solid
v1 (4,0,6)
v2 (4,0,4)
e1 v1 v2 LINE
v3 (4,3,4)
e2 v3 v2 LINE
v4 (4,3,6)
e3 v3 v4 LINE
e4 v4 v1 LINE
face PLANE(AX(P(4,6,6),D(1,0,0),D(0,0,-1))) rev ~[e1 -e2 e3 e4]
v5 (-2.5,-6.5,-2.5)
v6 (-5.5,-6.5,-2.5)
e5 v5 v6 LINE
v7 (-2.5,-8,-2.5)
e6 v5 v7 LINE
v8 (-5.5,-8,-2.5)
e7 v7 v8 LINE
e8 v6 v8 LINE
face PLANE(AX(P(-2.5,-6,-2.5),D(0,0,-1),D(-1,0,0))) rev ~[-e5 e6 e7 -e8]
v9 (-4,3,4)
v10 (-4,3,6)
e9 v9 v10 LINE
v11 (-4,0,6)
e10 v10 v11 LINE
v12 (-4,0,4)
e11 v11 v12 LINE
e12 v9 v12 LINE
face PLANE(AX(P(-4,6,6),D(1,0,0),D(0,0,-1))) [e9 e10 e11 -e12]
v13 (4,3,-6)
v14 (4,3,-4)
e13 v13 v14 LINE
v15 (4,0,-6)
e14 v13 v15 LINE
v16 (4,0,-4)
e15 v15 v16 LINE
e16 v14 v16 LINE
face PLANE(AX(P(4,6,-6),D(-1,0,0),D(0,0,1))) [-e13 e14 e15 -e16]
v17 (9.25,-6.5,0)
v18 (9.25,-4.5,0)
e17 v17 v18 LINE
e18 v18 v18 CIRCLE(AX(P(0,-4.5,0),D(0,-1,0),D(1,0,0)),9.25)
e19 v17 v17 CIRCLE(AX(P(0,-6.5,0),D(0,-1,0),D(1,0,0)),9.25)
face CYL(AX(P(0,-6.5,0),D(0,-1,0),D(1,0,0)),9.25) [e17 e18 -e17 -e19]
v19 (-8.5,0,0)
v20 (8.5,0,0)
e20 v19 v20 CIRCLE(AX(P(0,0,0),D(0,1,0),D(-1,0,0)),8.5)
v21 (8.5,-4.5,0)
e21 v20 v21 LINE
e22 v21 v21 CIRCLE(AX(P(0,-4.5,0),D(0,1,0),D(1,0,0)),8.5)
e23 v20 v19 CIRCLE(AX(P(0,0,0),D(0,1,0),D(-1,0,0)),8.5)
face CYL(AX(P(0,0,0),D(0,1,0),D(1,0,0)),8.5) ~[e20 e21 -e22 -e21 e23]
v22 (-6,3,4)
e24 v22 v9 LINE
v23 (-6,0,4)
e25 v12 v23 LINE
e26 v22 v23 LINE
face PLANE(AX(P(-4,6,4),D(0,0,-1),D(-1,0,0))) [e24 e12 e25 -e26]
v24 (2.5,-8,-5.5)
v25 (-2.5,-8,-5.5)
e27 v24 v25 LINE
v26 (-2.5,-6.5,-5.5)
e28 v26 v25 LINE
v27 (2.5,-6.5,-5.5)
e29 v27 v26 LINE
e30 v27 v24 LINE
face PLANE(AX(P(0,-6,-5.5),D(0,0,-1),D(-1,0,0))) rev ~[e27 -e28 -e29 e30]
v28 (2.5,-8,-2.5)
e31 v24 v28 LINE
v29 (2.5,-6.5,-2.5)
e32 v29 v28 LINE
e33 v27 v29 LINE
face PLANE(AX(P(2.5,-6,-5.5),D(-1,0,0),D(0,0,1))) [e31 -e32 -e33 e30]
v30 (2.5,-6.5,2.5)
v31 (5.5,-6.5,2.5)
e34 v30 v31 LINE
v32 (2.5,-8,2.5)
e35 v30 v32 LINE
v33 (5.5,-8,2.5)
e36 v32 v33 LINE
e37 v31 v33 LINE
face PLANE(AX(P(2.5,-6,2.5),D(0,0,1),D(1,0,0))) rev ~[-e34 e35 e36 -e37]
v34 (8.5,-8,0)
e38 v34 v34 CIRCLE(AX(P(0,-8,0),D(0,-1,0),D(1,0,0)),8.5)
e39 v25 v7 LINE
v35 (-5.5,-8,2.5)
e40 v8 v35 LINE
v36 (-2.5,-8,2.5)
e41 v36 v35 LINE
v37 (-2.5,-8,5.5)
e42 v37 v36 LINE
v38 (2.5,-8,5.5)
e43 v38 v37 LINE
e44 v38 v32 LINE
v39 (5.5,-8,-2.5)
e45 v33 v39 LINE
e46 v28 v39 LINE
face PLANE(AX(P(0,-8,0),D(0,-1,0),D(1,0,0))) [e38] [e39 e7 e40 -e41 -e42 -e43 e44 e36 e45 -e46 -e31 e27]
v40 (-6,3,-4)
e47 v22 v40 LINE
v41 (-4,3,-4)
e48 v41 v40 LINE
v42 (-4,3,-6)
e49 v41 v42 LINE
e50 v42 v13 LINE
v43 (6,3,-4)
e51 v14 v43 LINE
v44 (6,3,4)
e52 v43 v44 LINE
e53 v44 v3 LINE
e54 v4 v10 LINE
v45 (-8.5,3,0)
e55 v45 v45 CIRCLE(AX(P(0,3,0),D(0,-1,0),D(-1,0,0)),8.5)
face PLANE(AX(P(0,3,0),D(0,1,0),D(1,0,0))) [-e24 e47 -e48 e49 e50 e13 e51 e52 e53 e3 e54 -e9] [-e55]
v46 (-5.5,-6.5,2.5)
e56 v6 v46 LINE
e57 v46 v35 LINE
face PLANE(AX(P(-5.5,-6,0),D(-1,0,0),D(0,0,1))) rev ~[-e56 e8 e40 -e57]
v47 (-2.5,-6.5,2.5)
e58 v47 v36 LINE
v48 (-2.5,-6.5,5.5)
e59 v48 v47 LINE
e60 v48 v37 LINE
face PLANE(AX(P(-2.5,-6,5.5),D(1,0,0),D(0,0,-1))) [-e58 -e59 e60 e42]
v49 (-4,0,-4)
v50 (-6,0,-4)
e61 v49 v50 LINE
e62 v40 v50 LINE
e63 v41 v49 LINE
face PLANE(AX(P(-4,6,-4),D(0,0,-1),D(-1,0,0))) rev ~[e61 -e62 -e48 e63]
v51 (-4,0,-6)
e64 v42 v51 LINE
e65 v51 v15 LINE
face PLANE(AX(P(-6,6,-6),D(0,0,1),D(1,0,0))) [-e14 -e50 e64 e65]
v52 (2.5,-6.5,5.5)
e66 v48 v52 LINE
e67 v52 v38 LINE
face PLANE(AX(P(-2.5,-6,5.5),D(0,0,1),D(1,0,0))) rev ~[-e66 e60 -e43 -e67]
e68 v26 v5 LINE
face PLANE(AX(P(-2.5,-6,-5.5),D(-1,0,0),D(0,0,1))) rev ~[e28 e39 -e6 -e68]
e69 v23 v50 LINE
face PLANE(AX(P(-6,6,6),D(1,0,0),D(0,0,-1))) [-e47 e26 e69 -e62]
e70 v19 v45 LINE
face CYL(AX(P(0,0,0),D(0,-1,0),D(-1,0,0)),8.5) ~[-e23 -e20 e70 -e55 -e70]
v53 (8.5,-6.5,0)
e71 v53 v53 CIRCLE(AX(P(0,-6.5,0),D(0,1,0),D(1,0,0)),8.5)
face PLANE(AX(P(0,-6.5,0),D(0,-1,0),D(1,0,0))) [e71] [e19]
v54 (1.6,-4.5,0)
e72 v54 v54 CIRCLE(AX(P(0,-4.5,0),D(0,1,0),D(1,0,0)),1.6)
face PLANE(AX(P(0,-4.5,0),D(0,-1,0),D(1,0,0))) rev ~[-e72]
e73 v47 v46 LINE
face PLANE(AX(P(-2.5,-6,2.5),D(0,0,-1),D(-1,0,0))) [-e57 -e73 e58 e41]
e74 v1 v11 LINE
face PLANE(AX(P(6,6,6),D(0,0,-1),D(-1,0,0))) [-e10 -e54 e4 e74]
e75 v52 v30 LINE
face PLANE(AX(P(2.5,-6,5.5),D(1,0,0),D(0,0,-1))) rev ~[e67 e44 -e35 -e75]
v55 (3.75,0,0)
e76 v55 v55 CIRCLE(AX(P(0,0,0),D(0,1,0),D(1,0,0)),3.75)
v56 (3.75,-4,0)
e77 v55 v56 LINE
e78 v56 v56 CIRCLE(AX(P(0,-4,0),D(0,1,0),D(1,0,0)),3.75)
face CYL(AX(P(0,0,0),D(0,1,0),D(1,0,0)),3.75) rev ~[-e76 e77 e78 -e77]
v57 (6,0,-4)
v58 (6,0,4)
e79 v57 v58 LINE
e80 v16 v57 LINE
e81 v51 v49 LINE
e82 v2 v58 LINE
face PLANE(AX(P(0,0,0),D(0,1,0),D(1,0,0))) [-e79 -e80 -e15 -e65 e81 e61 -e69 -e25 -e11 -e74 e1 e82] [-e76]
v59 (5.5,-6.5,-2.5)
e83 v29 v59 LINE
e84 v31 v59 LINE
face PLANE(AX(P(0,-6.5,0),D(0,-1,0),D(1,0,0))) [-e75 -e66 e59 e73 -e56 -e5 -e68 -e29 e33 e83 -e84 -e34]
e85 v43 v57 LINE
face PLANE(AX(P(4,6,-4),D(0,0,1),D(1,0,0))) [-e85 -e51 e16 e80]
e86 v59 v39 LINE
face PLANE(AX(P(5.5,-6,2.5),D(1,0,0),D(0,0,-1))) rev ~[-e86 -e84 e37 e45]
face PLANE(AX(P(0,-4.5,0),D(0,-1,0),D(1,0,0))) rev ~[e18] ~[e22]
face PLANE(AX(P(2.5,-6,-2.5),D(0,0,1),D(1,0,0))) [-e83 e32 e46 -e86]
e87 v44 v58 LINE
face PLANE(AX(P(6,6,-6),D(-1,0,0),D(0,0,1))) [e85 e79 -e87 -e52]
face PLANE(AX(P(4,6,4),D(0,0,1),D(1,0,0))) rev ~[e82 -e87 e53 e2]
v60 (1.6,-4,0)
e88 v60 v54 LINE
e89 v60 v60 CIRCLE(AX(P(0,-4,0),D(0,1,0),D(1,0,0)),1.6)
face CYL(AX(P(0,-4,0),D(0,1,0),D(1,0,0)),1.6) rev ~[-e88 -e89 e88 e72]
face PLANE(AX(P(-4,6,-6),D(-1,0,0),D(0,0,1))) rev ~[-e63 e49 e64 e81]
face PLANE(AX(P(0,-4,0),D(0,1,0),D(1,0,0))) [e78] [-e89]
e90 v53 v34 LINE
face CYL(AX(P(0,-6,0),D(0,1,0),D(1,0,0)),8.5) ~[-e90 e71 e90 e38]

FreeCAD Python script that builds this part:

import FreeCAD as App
import Part
import Sketcher

doc = App.newDocument("Part")
body = doc.addObject("PartDesign::Body", "Body")

sketch1 = doc.addObject("Sketcher::SketchObject", "Sketch")
body.addObject(sketch1)
sketch1.AttachmentSupport = (doc.XZ_Plane, [""])
sketch1.MapMode = "FlatFace"
sketch1.addGeometry(Part.Circle(App.Vector(0, 0, 0), App.Vector(0, 0, 1), 8), False)
sketch1.addConstraint(Sketcher.Constraint("Coincident", 0, 3, -1, 1))
sketch1.addConstraint(Sketcher.Constraint("Diameter", 0, 17.0))
pad1 = doc.addObject("PartDesign::Pad", "Pad")
body.addObject(pad1)
pad1.Profile = sketch1
pad1.Length = 6
pad1.Reversed = True

sketch2 = doc.addObject("Sketcher::SketchObject", "Sketch001")
body.addObject(sketch2)
sketch2.AttachmentSupport = (doc.XZ_Plane, [""])
sketch2.MapMode = "FlatFace"
sketch2.addGeometry(Part.Circle(App.Vector(0, 0, 0), App.Vector(0, 0, 1), 8), False)
sketch2.addConstraint(Sketcher.Constraint("Coincident", 0, 3, -1, 1))
sketch2.addConstraint(Sketcher.Constraint("Diameter", 0, 17.0))
pad2 = doc.addObject("PartDesign::Pad", "Pad001")
body.addObject(pad2)
pad2.Profile = sketch2
pad2.Length = 6

sketch3 = doc.addObject("Sketcher::SketchObject", "Sketch002")
body.addObject(sketch3)
sketch3.AttachmentSupport = (doc.XZ_Plane, [""])
sketch3.MapMode = "FlatFace"
sketch3.AttachmentOffset = App.Placement(App.Vector(0, 0, -6), App.Rotation())
sketch3.addGeometry(Part.LineSegment(App.Vector(6, -6, 0), App.Vector(-6, -6, 0)), False)
sketch3.addGeometry(Part.LineSegment(App.Vector(-6, -6, 0), App.Vector(-6, 6, 0)), False)
sketch3.addGeometry(Part.LineSegment(App.Vector(-6, 6, 0), App.Vector(6, 6, 0)), False)
sketch3.addGeometry(Part.LineSegment(App.Vector(6, 6, 0), App.Vector(6, -6, 0)), False)
sketch3.addConstraint(Sketcher.Constraint("Coincident", 0, 2, 1, 1))
sketch3.addConstraint(Sketcher.Constraint("Coincident", 1, 2, 2, 1))
sketch3.addConstraint(Sketcher.Constraint("Coincident", 2, 2, 3, 1))
sketch3.addConstraint(Sketcher.Constraint("Coincident", 3, 2, 0, 1))
sketch3.addConstraint(Sketcher.Constraint("Horizontal", 0))
sketch3.addConstraint(Sketcher.Constraint("Vertical", 1))
sketch3.addConstraint(Sketcher.Constraint("Horizontal", 2))
sketch3.addConstraint(Sketcher.Constraint("Vertical", 3))
sketch3.addConstraint(Sketcher.Constraint("Symmetric", 0, 2, 2, 2, -1, 1))
sketch3.addConstraint(Sketcher.Constraint("Equal", 2, 1))
sketch3.addConstraint(Sketcher.Constraint("DistanceX", 0, 2, 0, 1, 12.0))
pocket1 = doc.addObject("PartDesign::Pocket", "Pocket")
body.addObject(pocket1)
pocket1.Profile = sketch3
pocket1.Length = 6
pocket1.Reversed = True

sketch4 = doc.addObject("Sketcher::SketchObject", "Sketch003")
body.addObject(sketch4)
sketch4.AttachmentSupport = (doc.XZ_Plane, [""])
sketch4.MapMode = "FlatFace"
sketch4.addGeometry(Part.Circle(App.Vector(0, 0, 0), App.Vector(0, 0, 1), 3.8), False)
sketch4.addConstraint(Sketcher.Constraint("Coincident", 0, 3, -1, 1))
sketch4.addConstraint(Sketcher.Constraint("Diameter", 0, 7.5))
pocket2 = doc.addObject("PartDesign::Pocket", "Pocket001")
body.addObject(pocket2)
pocket2.Profile = sketch4
pocket2.Length = 4
pocket2.Reversed = True

sketch5 = doc.addObject("Sketcher::SketchObject", "Sketch004")
body.addObject(sketch5)
sketch5.AttachmentSupport = (doc.XZ_Plane, [""])
sketch5.MapMode = "FlatFace"
sketch5.AttachmentOffset = App.Placement(App.Vector(0, 0, -6), App.Rotation())
sketch5.addGeometry(Part.LineSegment(App.Vector(-4, -6, 0), App.Vector(-6, -6, 0)), False)
sketch5.addGeometry(Part.LineSegment(App.Vector(-6, -6, 0), App.Vector(-6, -4, 0)), False)
sketch5.addGeometry(Part.LineSegment(App.Vector(-6, -4, 0), App.Vector(-4, -4, 0)), False)
sketch5.addGeometry(Part.LineSegment(App.Vector(-4, -4, 0), App.Vector(-4, -6, 0)), False)
sketch5.addGeometry(Part.LineSegment(App.Vector(-6, 6, 0), App.Vector(-4, 6, 0)), False)
sketch5.addGeometry(Part.LineSegment(App.Vector(-4, 6, 0), App.Vector(-4, 4, 0)), False)
sketch5.addGeometry(Part.LineSegment(App.Vector(-4, 4, 0), App.Vector(-6, 4, 0)), False)
sketch5.addGeometry(Part.LineSegment(App.Vector(-6, 4, 0), App.Vector(-6, 6, 0)), False)
sketch5.addGeometry(Part.LineSegment(App.Vector(6, 6, 0), App.Vector(6, 4, 0)), False)
sketch5.addGeometry(Part.LineSegment(App.Vector(6, 4, 0), App.Vector(4, 4, 0)), False)
sketch5.addGeometry(Part.LineSegment(App.Vector(4, 4, 0), App.Vector(4, 6, 0)), False)
sketch5.addGeometry(Part.LineSegment(App.Vector(4, 6, 0), App.Vector(6, 6, 0)), False)
sketch5.addGeometry(Part.LineSegment(App.Vector(6, -4, 0), App.Vector(6, -6, 0)), False)
sketch5.addGeometry(Part.LineSegment(App.Vector(6, -6, 0), App.Vector(4, -6, 0)), False)
sketch5.addGeometry(Part.LineSegment(App.Vector(4, -6, 0), App.Vector(4, -4, 0)), False)
sketch5.addGeometry(Part.LineSegment(App.Vector(4, -4, 0), App.Vector(6, -4, 0)), False)
sketch5.addConstraint(Sketcher.Constraint("Coincident", 0, 2, 1, 1))
sketch5.addConstraint(Sketcher.Constraint("Coincident", 1, 2, 2, 1))
sketch5.addConstraint(Sketcher.Constraint("Coincident", 2, 2, 3, 1))
sketch5.addConstraint(Sketcher.Constraint("Coincident", 3, 2, 0, 1))
sketch5.addConstraint(Sketcher.Constraint("Coincident", 4, 2, 5, 1))
sketch5.addConstraint(Sketcher.Constraint("Coincident", 5, 2, 6, 1))
sketch5.addConstraint(Sketcher.Constraint("Coincident", 6, 2, 7, 1))
sketch5.addConstraint(Sketcher.Constraint("Coincident", 7, 2, 4, 1))
sketch5.addConstraint(Sketcher.Constraint("Coincident", 8, 2, 9, 1))
sketch5.addConstraint(Sketcher.Constraint("Coincident", 9, 2, 10, 1))
sketch5.addConstraint(Sketcher.Constraint("Coincident", 10, 2, 11, 1))
sketch5.addConstraint(Sketcher.Constraint("Coincident", 11, 2, 8, 1))
sketch5.addConstraint(Sketcher.Constraint("Coincident", 12, 2, 13, 1))
sketch5.addConstraint(Sketcher.Constraint("Coincident", 13, 2, 14, 1))
sketch5.addConstraint(Sketcher.Constraint("Coincident", 14, 2, 15, 1))
sketch5.addConstraint(Sketcher.Constraint("Coincident", 15, 2, 12, 1))
sketch5.addConstraint(Sketcher.Constraint("Horizontal", 0))
sketch5.addConstraint(Sketcher.Constraint("Vertical", 1))
sketch5.addConstraint(Sketcher.Constraint("Horizontal", 2))
sketch5.addConstraint(Sketcher.Constraint("Vertical", 3))
sketch5.addConstraint(Sketcher.Constraint("Horizontal", 4))
sketch5.addConstraint(Sketcher.Constraint("Vertical", 5))
sketch5.addConstraint(Sketcher.Constraint("Horizontal", 6))
sketch5.addConstraint(Sketcher.Constraint("Vertical", 7))
sketch5.addConstraint(Sketcher.Constraint("Vertical", 8))
sketch5.addConstraint(Sketcher.Constraint("Horizontal", 9))
sketch5.addConstraint(Sketcher.Constraint("Vertical", 10))
sketch5.addConstraint(Sketcher.Constraint("Horizontal", 11))
sketch5.addConstraint(Sketcher.Constraint("Vertical", 12))
sketch5.addConstraint(Sketcher.Constraint("Horizontal", 13))
sketch5.addConstraint(Sketcher.Constraint("Vertical", 14))
sketch5.addConstraint(Sketcher.Constraint("Horizontal", 15))
sketch5.addConstraint(Sketcher.Constraint("Symmetric", 1, 2, 8, 2, -1, 1))
sketch5.addConstraint(Sketcher.Constraint("Symmetric", 3, 2, 10, 2, -1, 1))
sketch5.addConstraint(Sketcher.Constraint("Symmetric", 7, 2, 12, 2, -1, 1))
sketch5.addConstraint(Sketcher.Constraint("Symmetric", 5, 2, 14, 2, -1, 1))
sketch5.addConstraint(Sketcher.Constraint("Symmetric", 6, 2, 8, 2, -2))
sketch5.addConstraint(Sketcher.Constraint("Symmetric", 4, 2, 10, 2, -2))
sketch5.addConstraint(Sketcher.Constraint("Equal", 15, 1))
sketch5.addConstraint(Sketcher.Constraint("DistanceX", 0, 2, 0, 1, 2.0))
sketch5.addConstraint(Sketcher.Constraint("DistanceX", 0, 2, -1, 1, 6.0))
sketch5.addConstraint(Sketcher.Constraint("DistanceY", 0, 2, -1, 1, 6.0))
pad3 = doc.addObject("PartDesign::Pad", "Pad002")
body.addObject(pad3)
pad3.Profile = sketch5
pad3.Length = 6

sketch6 = doc.addObject("Sketcher::SketchObject", "Sketch005")
body.addObject(sketch6)
sketch6.AttachmentSupport = (doc.XZ_Plane, [""])
sketch6.MapMode = "FlatFace"
sketch6.AttachmentOffset = App.Placement(App.Vector(0, 0, 6), App.Rotation())
sketch6.addGeometry(Part.Circle(App.Vector(0, 0, 0), App.Vector(0, 0, 1), 8.5), False)
sketch6.addGeometry(Part.LineSegment(App.Vector(-2.5, 2.5, 0), App.Vector(-2.5, 5.5, 0)), False)
sketch6.addGeometry(Part.LineSegment(App.Vector(-2.5, 5.5, 0), App.Vector(2.5, 5.5, 0)), False)
sketch6.addGeometry(Part.LineSegment(App.Vector(2.5, 5.5, 0), App.Vector(2.5, 2.5, 0)), False)
sketch6.addGeometry(Part.LineSegment(App.Vector(2.5, 2.5, 0), App.Vector(5.5, 2.5, 0)), False)
sketch6.addGeometry(Part.LineSegment(App.Vector(5.5, 2.5, 0), App.Vector(5.5, -2.5, 0)), False)
sketch6.addGeometry(Part.LineSegment(App.Vector(5.5, -2.5, 0), App.Vector(2.5, -2.5, 0)), False)
sketch6.addGeometry(Part.LineSegment(App.Vector(2.5, -2.5, 0), App.Vector(2.5, -5.5, 0)), False)
sketch6.addGeometry(Part.LineSegment(App.Vector(2.5, -5.5, 0), App.Vector(-2.5, -5.5, 0)), False)
sketch6.addGeometry(Part.LineSegment(App.Vector(-2.5, -5.5, 0), App.Vector(-2.5, -2.5, 0)), False)
sketch6.addGeometry(Part.LineSegment(App.Vector(-2.5, -2.5, 0), App.Vector(-5.5, -2.5, 0)), False)
sketch6.addGeometry(Part.LineSegment(App.Vector(-5.5, -2.5, 0), App.Vector(-5.5, 2.5, 0)), False)
sketch6.addGeometry(Part.LineSegment(App.Vector(-5.5, 2.5, 0), App.Vector(-2.5, 2.5, 0)), False)
sketch6.addConstraint(Sketcher.Constraint("Coincident", 1, 2, 2, 1))
sketch6.addConstraint(Sketcher.Constraint("Coincident", 2, 2, 3, 1))
sketch6.addConstraint(Sketcher.Constraint("Coincident", 3, 2, 4, 1))
sketch6.addConstraint(Sketcher.Constraint("Coincident", 4, 2, 5, 1))
sketch6.addConstraint(Sketcher.Constraint("Coincident", 5, 2, 6, 1))
sketch6.addConstraint(Sketcher.Constraint("Coincident", 6, 2, 7, 1))
sketch6.addConstraint(Sketcher.Constraint("Coincident", 7, 2, 8, 1))
sketch6.addConstraint(Sketcher.Constraint("Coincident", 8, 2, 9, 1))
sketch6.addConstraint(Sketcher.Constraint("Coincident", 9, 2, 10, 1))
sketch6.addConstraint(Sketcher.Constraint("Coincident", 10, 2, 11, 1))
sketch6.addConstraint(Sketcher.Constraint("Coincident", 11, 2, 12, 1))
sketch6.addConstraint(Sketcher.Constraint("Coincident", 12, 2, 1, 1))
sketch6.addConstraint(Sketcher.Constraint("Vertical", 1))
sketch6.addConstraint(Sketcher.Constraint("Horizontal", 2))
sketch6.addConstraint(Sketcher.Constraint("Vertical", 3))
sketch6.addConstraint(Sketcher.Constraint("Horizontal", 4))
sketch6.addConstraint(Sketcher.Constraint("Vertical", 5))
sketch6.addConstraint(Sketcher.Constraint("Horizontal", 6))
sketch6.addConstraint(Sketcher.Constraint("Vertical", 7))
sketch6.addConstraint(Sketcher.Constraint("Horizontal", 8))
sketch6.addConstraint(Sketcher.Constraint("Vertical", 9))
sketch6.addConstraint(Sketcher.Constraint("Horizontal", 10))
sketch6.addConstraint(Sketcher.Constraint("Vertical", 11))
sketch6.addConstraint(Sketcher.Constraint("Horizontal", 12))
sketch6.addConstraint(Sketcher.Constraint("Coincident", 0, 3, -1, 1))
sketch6.addConstraint(Sketcher.Constraint("Symmetric", 1, 2, 7, 2, -1, 1))
sketch6.addConstraint(Sketcher.Constraint("Symmetric", 3, 2, 9, 2, -1, 1))
sketch6.addConstraint(Sketcher.Constraint("Symmetric", 5, 2, 11, 2, -1, 1))
sketch6.addConstraint(Sketcher.Constraint("Symmetric", 6, 2, 9, 2, -2))
sketch6.addConstraint(Sketcher.Constraint("Equal", 12, 1))
sketch6.addConstraint(Sketcher.Constraint("Equal", 8, 5))
sketch6.addConstraint(Sketcher.Constraint("Diameter", 0, 17.0))
sketch6.addConstraint(Sketcher.Constraint("DistanceX", 4, 1, 4, 2, 3.0))
sketch6.addConstraint(Sketcher.Constraint("DistanceX", 1, 2, -1, 1, 2.5))
pad4 = doc.addObject("PartDesign::Pad", "Pad003")
body.addObject(pad4)
pad4.Profile = sketch6
pad4.Length = 2

sketch7 = doc.addObject("Sketcher::SketchObject", "Sketch006")
body.addObject(sketch7)
sketch7.AttachmentSupport = (doc.XZ_Plane, [""])
sketch7.MapMode = "FlatFace"
sketch7.AttachmentOffset = App.Placement(App.Vector(0, 0, 4), App.Rotation())
sketch7.addGeometry(Part.Circle(App.Vector(0, 0, 0), App.Vector(0, 0, 1), 1.6), False)
sketch7.addConstraint(Sketcher.Constraint("Coincident", 0, 3, -1, 1))
sketch7.addConstraint(Sketcher.Constraint("Diameter", 0, 3.2))
pocket3 = doc.addObject("PartDesign::Pocket", "Pocket002")
body.addObject(pocket3)
pocket3.Profile = sketch7
pocket3.Length = 2
pocket3.Reversed = True

sketch8 = doc.addObject("Sketcher::SketchObject", "Sketch007")
body.addObject(sketch8)
sketch8.AttachmentSupport = (doc.XZ_Plane, [""])
sketch8.MapMode = "FlatFace"
sketch8.AttachmentOffset = App.Placement(App.Vector(0, 0, -6), App.Rotation())
sketch8.addGeometry(Part.Circle(App.Vector(0, 0, 0), App.Vector(0, 0, 1), 9), False)
sketch8.addGeometry(Part.LineSegment(App.Vector(-4, -4, 0), App.Vector(-4, -6, 0)), False)
sketch8.addGeometry(Part.LineSegment(App.Vector(-4, -6, 0), App.Vector(4, -6, 0)), False)
sketch8.addGeometry(Part.LineSegment(App.Vector(4, -6, 0), App.Vector(4, -4, 0)), False)
sketch8.addGeometry(Part.LineSegment(App.Vector(4, -4, 0), App.Vector(6, -4, 0)), False)
sketch8.addGeometry(Part.LineSegment(App.Vector(6, -4, 0), App.Vector(6, 4, 0)), False)
sketch8.addGeometry(Part.LineSegment(App.Vector(6, 4, 0), App.Vector(4, 4, 0)), False)
sketch8.addGeometry(Part.LineSegment(App.Vector(4, 4, 0), App.Vector(4, 6, 0)), False)
sketch8.addGeometry(Part.LineSegment(App.Vector(4, 6, 0), App.Vector(-4, 6, 0)), False)
sketch8.addGeometry(Part.LineSegment(App.Vector(-4, 6, 0), App.Vector(-4, 4, 0)), False)
sketch8.addGeometry(Part.LineSegment(App.Vector(-4, 4, 0), App.Vector(-6, 4, 0)), False)
sketch8.addGeometry(Part.LineSegment(App.Vector(-6, 4, 0), App.Vector(-6, -4, 0)), False)
sketch8.addGeometry(Part.LineSegment(App.Vector(-6, -4, 0), App.Vector(-4, -4, 0)), False)
sketch8.addConstraint(Sketcher.Constraint("Coincident", 1, 2, 2, 1))
sketch8.addConstraint(Sketcher.Constraint("Coincident", 2, 2, 3, 1))
sketch8.addConstraint(Sketcher.Constraint("Coincident", 3, 2, 4, 1))
sketch8.addConstraint(Sketcher.Constraint("Coincident", 4, 2, 5, 1))
sketch8.addConstraint(Sketcher.Constraint("Coincident", 5, 2, 6, 1))
sketch8.addConstraint(Sketcher.Constraint("Coincident", 6, 2, 7, 1))
sketch8.addConstraint(Sketcher.Constraint("Coincident", 7, 2, 8, 1))
sketch8.addConstraint(Sketcher.Constraint("Coincident", 8, 2, 9, 1))
sketch8.addConstraint(Sketcher.Constraint("Coincident", 9, 2, 10, 1))
sketch8.addConstraint(Sketcher.Constraint("Coincident", 10, 2, 11, 1))
sketch8.addConstraint(Sketcher.Constraint("Coincident", 11, 2, 12, 1))
sketch8.addConstraint(Sketcher.Constraint("Coincident", 12, 2, 1, 1))
sketch8.addConstraint(Sketcher.Constraint("Vertical", 1))
sketch8.addConstraint(Sketcher.Constraint("Horizontal", 2))
sketch8.addConstraint(Sketcher.Constraint("Vertical", 3))
sketch8.addConstraint(Sketcher.Constraint("Horizontal", 4))
sketch8.addConstraint(Sketcher.Constraint("Vertical", 5))
sketch8.addConstraint(Sketcher.Constraint("Horizontal", 6))
sketch8.addConstraint(Sketcher.Constraint("Vertical", 7))
sketch8.addConstraint(Sketcher.Constraint("Horizontal", 8))
sketch8.addConstraint(Sketcher.Constraint("Vertical", 9))
sketch8.addConstraint(Sketcher.Constraint("Horizontal", 10))
sketch8.addConstraint(Sketcher.Constraint("Vertical", 11))
sketch8.addConstraint(Sketcher.Constraint("Horizontal", 12))
sketch8.addConstraint(Sketcher.Constraint("Coincident", 0, 3, -1, 1))
sketch8.addConstraint(Sketcher.Constraint("Symmetric", 1, 2, 7, 2, -1, 1))
sketch8.addConstraint(Sketcher.Constraint("Symmetric", 3, 2, 9, 2, -1, 1))
sketch8.addConstraint(Sketcher.Constraint("Symmetric", 5, 2, 11, 2, -1, 1))
sketch8.addConstraint(Sketcher.Constraint("Symmetric", 6, 2, 9, 2, -2))
sketch8.addConstraint(Sketcher.Constraint("Equal", 12, 1))
sketch8.addConstraint(Sketcher.Constraint("Equal", 8, 5))
sketch8.addConstraint(Sketcher.Constraint("Diameter", 0, 18.0))
sketch8.addConstraint(Sketcher.Constraint("DistanceX", 2, 1, 2, 2, 8.0))
sketch8.addConstraint(Sketcher.Constraint("DistanceX", 4, 1, 4, 2, 2.0))
pocket4 = doc.addObject("PartDesign::Pocket", "Pocket003")
body.addObject(pocket4)
pocket4.Profile = sketch8
pocket4.Length = 3
pocket4.Reversed = True

sketch9 = doc.addObject("Sketcher::SketchObject", "Sketch008")
body.addObject(sketch9)
sketch9.AttachmentSupport = (doc.XZ_Plane, [""])
sketch9.MapMode = "FlatFace"
sketch9.AttachmentOffset = App.Placement(App.Vector(0, 0, 6.5), App.Rotation())
sketch9.addGeometry(Part.Circle(App.Vector(0, 0, 0), App.Vector(0, 0, 1), 9), False)
sketch9.addConstraint(Sketcher.Constraint("Coincident", 0, 3, -1, 1))
sketch9.addConstraint(Sketcher.Constraint("Diameter", 0, 18.5))
pad5 = doc.addObject("PartDesign::Pad", "Pad004")
body.addObject(pad5)
pad5.Profile = sketch9
pad5.Length = 2
pad5.Reversed = True

doc.recompute()
